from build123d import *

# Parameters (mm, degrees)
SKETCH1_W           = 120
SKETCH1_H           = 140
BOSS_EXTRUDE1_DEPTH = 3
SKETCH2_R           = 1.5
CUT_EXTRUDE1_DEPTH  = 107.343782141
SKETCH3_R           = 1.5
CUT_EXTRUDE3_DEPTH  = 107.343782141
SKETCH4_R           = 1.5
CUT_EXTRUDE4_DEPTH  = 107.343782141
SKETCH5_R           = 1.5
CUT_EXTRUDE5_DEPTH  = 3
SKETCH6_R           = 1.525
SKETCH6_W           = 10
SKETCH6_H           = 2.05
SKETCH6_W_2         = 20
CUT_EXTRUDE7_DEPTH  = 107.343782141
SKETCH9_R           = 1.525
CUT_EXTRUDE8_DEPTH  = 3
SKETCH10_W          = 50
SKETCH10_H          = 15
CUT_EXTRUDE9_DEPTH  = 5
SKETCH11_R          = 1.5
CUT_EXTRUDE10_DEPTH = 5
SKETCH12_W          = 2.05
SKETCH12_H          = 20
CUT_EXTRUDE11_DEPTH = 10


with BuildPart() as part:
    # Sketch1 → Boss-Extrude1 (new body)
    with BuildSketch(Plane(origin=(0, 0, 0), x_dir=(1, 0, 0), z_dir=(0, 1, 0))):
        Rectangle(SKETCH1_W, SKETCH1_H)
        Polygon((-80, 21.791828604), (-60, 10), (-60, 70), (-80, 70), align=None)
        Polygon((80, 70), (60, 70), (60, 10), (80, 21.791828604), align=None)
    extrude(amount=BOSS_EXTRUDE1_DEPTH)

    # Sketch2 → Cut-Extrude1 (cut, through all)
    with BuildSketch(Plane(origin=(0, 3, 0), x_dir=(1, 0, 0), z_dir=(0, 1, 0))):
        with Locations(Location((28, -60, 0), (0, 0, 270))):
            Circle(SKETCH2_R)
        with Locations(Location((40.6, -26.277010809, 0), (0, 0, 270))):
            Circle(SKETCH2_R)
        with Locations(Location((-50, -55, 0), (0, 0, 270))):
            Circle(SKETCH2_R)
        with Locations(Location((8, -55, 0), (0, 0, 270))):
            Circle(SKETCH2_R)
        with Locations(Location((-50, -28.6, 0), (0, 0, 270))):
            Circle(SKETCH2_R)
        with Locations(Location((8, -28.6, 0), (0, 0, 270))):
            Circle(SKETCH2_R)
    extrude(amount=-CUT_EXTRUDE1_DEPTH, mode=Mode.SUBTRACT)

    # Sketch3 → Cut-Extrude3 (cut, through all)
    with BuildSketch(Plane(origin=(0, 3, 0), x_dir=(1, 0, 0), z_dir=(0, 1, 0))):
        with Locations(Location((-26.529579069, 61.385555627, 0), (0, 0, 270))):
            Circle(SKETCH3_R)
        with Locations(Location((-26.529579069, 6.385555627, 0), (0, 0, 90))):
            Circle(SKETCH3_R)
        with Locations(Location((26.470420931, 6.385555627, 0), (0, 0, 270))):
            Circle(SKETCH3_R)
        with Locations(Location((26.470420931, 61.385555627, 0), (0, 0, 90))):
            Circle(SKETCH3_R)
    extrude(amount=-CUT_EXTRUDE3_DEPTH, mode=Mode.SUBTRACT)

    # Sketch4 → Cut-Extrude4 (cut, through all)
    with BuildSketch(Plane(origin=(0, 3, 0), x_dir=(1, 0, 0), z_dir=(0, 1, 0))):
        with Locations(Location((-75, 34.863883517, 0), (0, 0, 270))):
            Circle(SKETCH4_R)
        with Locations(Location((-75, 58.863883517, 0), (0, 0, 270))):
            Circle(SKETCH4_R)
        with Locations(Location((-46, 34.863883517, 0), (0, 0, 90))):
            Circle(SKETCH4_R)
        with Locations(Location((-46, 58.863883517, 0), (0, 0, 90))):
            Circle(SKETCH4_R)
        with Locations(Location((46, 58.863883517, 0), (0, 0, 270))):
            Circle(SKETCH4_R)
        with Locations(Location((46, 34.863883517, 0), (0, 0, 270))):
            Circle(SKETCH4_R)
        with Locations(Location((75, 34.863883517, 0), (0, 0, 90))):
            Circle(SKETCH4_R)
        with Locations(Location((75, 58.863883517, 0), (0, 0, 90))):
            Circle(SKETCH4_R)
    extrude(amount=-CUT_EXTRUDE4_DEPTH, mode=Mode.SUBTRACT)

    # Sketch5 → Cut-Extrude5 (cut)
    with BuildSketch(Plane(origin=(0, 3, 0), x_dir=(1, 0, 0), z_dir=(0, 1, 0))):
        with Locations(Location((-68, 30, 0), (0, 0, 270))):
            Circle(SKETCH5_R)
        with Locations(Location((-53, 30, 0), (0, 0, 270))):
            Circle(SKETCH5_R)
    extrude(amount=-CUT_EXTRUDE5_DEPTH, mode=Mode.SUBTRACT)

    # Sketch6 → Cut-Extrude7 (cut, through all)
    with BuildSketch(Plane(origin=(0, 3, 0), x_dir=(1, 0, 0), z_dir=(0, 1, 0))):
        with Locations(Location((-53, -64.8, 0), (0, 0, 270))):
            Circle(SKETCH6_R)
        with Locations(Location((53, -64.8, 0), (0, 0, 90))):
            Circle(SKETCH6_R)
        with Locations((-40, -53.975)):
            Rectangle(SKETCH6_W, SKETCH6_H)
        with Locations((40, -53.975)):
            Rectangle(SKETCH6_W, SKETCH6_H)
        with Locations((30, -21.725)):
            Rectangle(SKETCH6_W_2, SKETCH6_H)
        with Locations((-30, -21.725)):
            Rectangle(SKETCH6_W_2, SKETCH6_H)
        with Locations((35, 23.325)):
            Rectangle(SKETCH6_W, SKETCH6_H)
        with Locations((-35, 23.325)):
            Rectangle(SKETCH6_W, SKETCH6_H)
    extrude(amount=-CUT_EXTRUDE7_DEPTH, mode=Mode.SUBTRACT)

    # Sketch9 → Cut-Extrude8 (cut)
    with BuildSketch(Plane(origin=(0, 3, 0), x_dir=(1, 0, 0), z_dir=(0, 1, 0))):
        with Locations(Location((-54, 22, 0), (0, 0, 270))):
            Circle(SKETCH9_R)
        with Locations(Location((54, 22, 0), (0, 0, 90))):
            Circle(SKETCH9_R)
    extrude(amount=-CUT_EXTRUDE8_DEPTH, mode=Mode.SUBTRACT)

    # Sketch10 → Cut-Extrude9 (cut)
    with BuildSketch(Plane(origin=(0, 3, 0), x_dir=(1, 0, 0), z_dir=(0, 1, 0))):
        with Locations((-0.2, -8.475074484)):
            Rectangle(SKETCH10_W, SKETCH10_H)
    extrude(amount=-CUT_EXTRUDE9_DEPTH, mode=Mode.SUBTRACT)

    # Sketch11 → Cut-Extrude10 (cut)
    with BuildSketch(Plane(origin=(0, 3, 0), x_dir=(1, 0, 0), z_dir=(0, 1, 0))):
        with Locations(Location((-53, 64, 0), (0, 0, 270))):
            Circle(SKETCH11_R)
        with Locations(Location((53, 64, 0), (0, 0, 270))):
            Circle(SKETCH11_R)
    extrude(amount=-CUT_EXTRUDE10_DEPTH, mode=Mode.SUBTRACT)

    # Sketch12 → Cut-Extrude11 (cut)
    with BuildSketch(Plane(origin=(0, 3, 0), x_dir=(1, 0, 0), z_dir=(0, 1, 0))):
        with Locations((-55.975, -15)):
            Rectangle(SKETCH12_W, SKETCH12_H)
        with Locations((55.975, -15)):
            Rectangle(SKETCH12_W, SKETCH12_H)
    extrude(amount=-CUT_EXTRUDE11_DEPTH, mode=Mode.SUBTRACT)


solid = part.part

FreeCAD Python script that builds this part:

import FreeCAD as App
import Part
import Sketcher

V = App.Vector


def add_polygon(sketch, points):
    """Adds a closed chain of lines whose ends are joined by coincident constraints."""
    first, n = sketch.GeometryCount, len(points)
    for a, b in zip(points, points[1:] + points[:1]):
        sketch.addGeometry(Part.LineSegment(App.Vector(*a, 0), App.Vector(*b, 0)), False)
    for i in range(n):
        sketch.addConstraint(Sketcher.Constraint("Coincident", first + i, 2, first + (i + 1) % n, 1))

doc = App.newDocument("Part")
body = doc.addObject("PartDesign::Body", "Body")

# Sketch on XZ plane
sketch1 = body.newObject("Sketcher::SketchObject", "Sketch")
sketch1.AttachmentSupport = (doc.getObject("XZ_Plane"), [""])
sketch1.MapMode = "FlatFace"
add_polygon(sketch1, [(-60, -10), (-60, 70), (60, 70), (60, -10), (80, -22), (80, -70), (-80, -70), (-80, -22)])  # lines 0-7
sketch1.addConstraint(Sketcher.Constraint("Vertical", 0))
sketch1.addConstraint(Sketcher.Constraint("Horizontal", 1))
sketch1.addConstraint(Sketcher.Constraint("Vertical", 2))
sketch1.addConstraint(Sketcher.Constraint("Vertical", 4))
sketch1.addConstraint(Sketcher.Constraint("Horizontal", 5))
sketch1.addConstraint(Sketcher.Constraint("Vertical", 6))
sketch1.addConstraint(Sketcher.Constraint("Symmetric", 3, 2, 6, 2, -2))
sketch1.addConstraint(Sketcher.Constraint("Symmetric", 2, 2, 7, 2, -2))
sketch1.addConstraint(Sketcher.Constraint("DistanceX", 1, 1, 1, 2, 120.0))
sketch1.addConstraint(Sketcher.Constraint("DistanceX", 5, 2, 5, 1, 160.0))
sketch1.addConstraint(Sketcher.Constraint("DistanceY", 0, 1, 0, 2, 80.0))
sketch1.addConstraint(Sketcher.Constraint("DistanceY", -1, 1, 0, 2, 70.0))
sketch1.addConstraint(Sketcher.Constraint("DistanceY", 4, 2, -1, 1, 70.0))
sketch1.addConstraint(Sketcher.Constraint("DistanceY", 4, 2, 4, 1, 48.208171))
pad1 = body.newObject("PartDesign::Pad", "Pad")
pad1.Profile = sketch1
pad1.Length = 3
pad1.Reversed = True

# Sketch on XZ plane
sketch2 = body.newObject("Sketcher::SketchObject", "Sketch001")
sketch2.AttachmentSupport = (doc.getObject("XZ_Plane"), [""])
sketch2.MapMode = "FlatFace"
sketch2.AttachmentOffset = App.Placement(V(0, 0, -3), App.Rotation())
sketch2.addGeometry(Part.Circle(V(28, 60, 0), V(0, 0, 1), 1.5), False)
sketch2.addGeometry(Part.Circle(V(40.6, 26.3, 0), V(0, 0, 1), 1.5), False)
sketch2.addGeometry(Part.Circle(V(-50, 55, 0), V(0, 0, 1), 1.5), False)
sketch2.addGeometry(Part.Circle(V(8, 55, 0), V(0, 0, 1), 1.5), False)
sketch2.addGeometry(Part.Circle(V(-50, 28.6, 0), V(0, 0, 1), 1.5), False)
sketch2.addGeometry(Part.Circle(V(8, 28.6, 0), V(0, 0, 1), 1.5), False)
sketch2.addConstraint(Sketcher.Constraint("Equal", 0, 1))
sketch2.addConstraint(Sketcher.Constraint("Equal", 1, 2))
sketch2.addConstraint(Sketcher.Constraint("Equal", 2, 3))
sketch2.addConstraint(Sketcher.Constraint("Equal", 3, 4))
sketch2.addConstraint(Sketcher.Constraint("Equal", 4, 5))
sketch2.addConstraint(Sketcher.Constraint("Horizontal", 2, 3, 3, 3))
sketch2.addConstraint(Sketcher.Constraint("Horizontal", 4, 3, 5, 3))
sketch2.addConstraint(Sketcher.Constraint("Vertical", 2, 3, 4, 3))
sketch2.addConstraint(Sketcher.Constraint("Vertical", 3, 3, 5, 3))
sketch2.addConstraint(Sketcher.Constraint("Diameter", 0, 3.0))
sketch2.addConstraint(Sketcher.Constraint("DistanceX", -1, 1, 0, 3, 28.0))
sketch2.addConstraint(Sketcher.Constraint("DistanceY", -1, 1, 0, 3, 60.0))
sketch2.addConstraint(Sketcher.Constraint("DistanceX", 2, 3, -1, 1, 50.0))
sketch2.addConstraint(Sketcher.Constraint("DistanceY", -1, 1, 2, 3, 55.0))
sketch2.addConstraint(Sketcher.Constraint("DistanceX", -1, 1, 3, 3, 8.0))
sketch2.addConstraint(Sketcher.Constraint("DistanceX", -1, 1, 1, 3, 40.6))
sketch2.addConstraint(Sketcher.Constraint("DistanceY", -1, 1, 4, 3, 28.6))
sketch2.addConstraint(Sketcher.Constraint("DistanceY", -1, 1, 1, 3, 26.277011))
pocket1 = body.newObject("PartDesign::Pocket", "Pocket")
pocket1.Profile = sketch2
pocket1.Type = "ThroughAll"
pocket1.Reversed = True

# Sketch on XZ plane
sketch3 = body.newObject("Sketcher::SketchObject", "Sketch002")
sketch3.AttachmentSupport = (doc.getObject("XZ_Plane"), [""])
sketch3.MapMode = "FlatFace"
sketch3.AttachmentOffset = App.Placement(V(0, 0, -3), App.Rotation())
sketch3.addGeometry(Part.Circle(V(-26.5, -61.4, 0), V(0, 0, 1), 1.5), False)
sketch3.addGeometry(Part.Circle(V(-26.5, -6.4, 0), V(0, 0, 1), 1.5), False)
sketch3.addGeometry(Part.Circle(V(26.5, -6.4, 0), V(0, 0, 1), 1.5), False)
sketch3.addGeometry(Part.Circle(V(26.5, -61.4, 0), V(0, 0, 1), 1.5), False)
sketch3.addConstraint(Sketcher.Constraint("Equal", 0, 1))
sketch3.addConstraint(Sketcher.Constraint("Equal", 1, 2))
sketch3.addConstraint(Sketcher.Constraint("Equal", 2, 3))
sketch3.addConstraint(Sketcher.Constraint("Horizontal", 1, 3, 2, 3))
sketch3.addConstraint(Sketcher.Constraint("Horizontal", 0, 3, 3, 3))
sketch3.addConstraint(Sketcher.Constraint("Vertical", 0, 3, 1, 3))
sketch3.addConstraint(Sketcher.Constraint("Vertical", 2, 3, 3, 3))
sketch3.addConstraint(Sketcher.Constraint("Diameter", 0, 3.0))
sketch3.addConstraint(Sketcher.Constraint("DistanceY", 0, 3, 1, 3, 55.0))
sketch3.addConstraint(Sketcher.Constraint("DistanceX", 1, 3, 2, 3, 53.0))
sketch3.addConstraint(Sketcher.Constraint("DistanceX", 0, 3, -1, 1, 26.529579))
sketch3.addConstraint(Sketcher.Constraint("DistanceY", 0, 3, -1, 1, 61.385556))
pocket2 = body.newObject("PartDesign::Pocket", "Pocket001")
pocket2.Profile = sketch3
pocket2.Type = "ThroughAll"
pocket2.Reversed = True

# Sketch on XZ plane
sketch4 = body.newObject("Sketcher::SketchObject", "Sketch003")
sketch4.AttachmentSupport = (doc.getObject("XZ_Plane"), [""])
sketch4.MapMode = "FlatFace"
sketch4.AttachmentOffset = App.Placement(V(0, 0, -3), App.Rotation())
sketch4.addGeometry(Part.Circle(V(-75, -34.9, 0), V(0, 0, 1), 1.5), False)
sketch4.addGeometry(Part.Circle(V(-75, -58.9, 0), V(0, 0, 1), 1.5), False)
sketch4.addGeometry(Part.Circle(V(-46, -34.9, 0), V(0, 0, 1), 1.5), False)
sketch4.addGeometry(Part.Circle(V(-46, -58.9, 0), V(0, 0, 1), 1.5), False)
sketch4.addGeometry(Part.Circle(V(46, -58.9, 0), V(0, 0, 1), 1.5), False)
sketch4.addGeometry(Part.Circle(V(46, -34.9, 0), V(0, 0, 1), 1.5), False)
sketch4.addGeometry(Part.Circle(V(75, -34.9, 0), V(0, 0, 1), 1.5), False)
sketch4.addGeometry(Part.Circle(V(75, -58.9, 0), V(0, 0, 1), 1.5), False)
sketch4.addConstraint(Sketcher.Constraint("Equal", 0, 1))
sketch4.addConstraint(Sketcher.Constraint("Equal", 1, 2))
sketch4.addConstraint(Sketcher.Constraint("Equal", 2, 3))
sketch4.addConstraint(Sketcher.Constraint("Equal", 3, 4))
sketch4.addConstraint(Sketcher.Constraint("Equal", 4, 5))
sketch4.addConstraint(Sketcher.Constraint("Equal", 5, 6))
sketch4.addConstraint(Sketcher.Constraint("Equal", 6, 7))
sketch4.addConstraint(Sketcher.Constraint("Symmetric", 3, 3, 4, 3, -2))
sketch4.addConstraint(Sketcher.Constraint("Symmetric", 2, 3, 5, 3, -2))
sketch4.addConstraint(Sketcher.Constraint("Symmetric", 0, 3, 6, 3, -2))
sketch4.addConstraint(Sketcher.Constraint("Symmetric", 1, 3, 7, 3, -2))
sketch4.addConstraint(Sketcher.Constraint("Horizontal", 0, 3, 2, 3))
sketch4.addConstraint(Sketcher.Constraint("Horizontal", 1, 3, 3, 3))
sketch4.addConstraint(Sketcher.Constraint("Vertical", 0, 3, 1, 3))
sketch4.addConstraint(Sketcher.Constraint("Vertical", 2, 3, 3, 3))
sketch4.addConstraint(Sketcher.Constraint("Diameter", 0, 3.0))
sketch4.addConstraint(Sketcher.Constraint("DistanceX", 0, 3, -1, 1, 75.0))
sketch4.addConstraint(Sketcher.Constraint("DistanceX", 2, 3, -1, 1, 46.0))
sketch4.addConstraint(Sketcher.Constraint("DistanceY", 1, 3, 0, 3, 24.0))
sketch4.addConstraint(Sketcher.Constraint("DistanceY", 0, 3, -1, 1, 34.863884))
pocket3 = body.newObject("PartDesign::Pocket", "Pocket002")
pocket3.Profile = sketch4
pocket3.Type = "ThroughAll"
pocket3.Reversed = True

# Sketch on XZ plane
sketch5 = body.newObject("Sketcher::SketchObject", "Sketch004")
sketch5.AttachmentSupport = (doc.getObject("XZ_Plane"), [""])
sketch5.MapMode = "FlatFace"
sketch5.AttachmentOffset = App.Placement(V(0, 0, -3), App.Rotation())
sketch5.addGeometry(Part.Circle(V(-68, -30, 0), V(0, 0, 1), 1.5), False)
sketch5.addGeometry(Part.Circle(V(-53, -30, 0), V(0, 0, 1), 1.5), False)
sketch5.addConstraint(Sketcher.Constraint("Equal", 0, 1))
sketch5.addConstraint(Sketcher.Constraint("Horizontal", 0, 3, 1, 3))
sketch5.addConstraint(Sketcher.Constraint("Diameter", 0, 3.0))
sketch5.addConstraint(Sketcher.Constraint("DistanceX", 0, 3, -1, 1, 68.0))
sketch5.addConstraint(Sketcher.Constraint("DistanceY", 0, 3, -1, 1, 30.0))
sketch5.addConstraint(Sketcher.Constraint("DistanceX", 1, 3, -1, 1, 53.0))
pocket4 = body.newObject("PartDesign::Pocket", "Pocket003")
pocket4.Profile = sketch5
pocket4.Length = 3
pocket4.Reversed = True

# Sketch on XZ plane
sketch6 = body.newObject("Sketcher::SketchObject", "Sketch005")
sketch6.AttachmentSupport = (doc.getObject("XZ_Plane"), [""])
sketch6.MapMode = "FlatFace"
sketch6.AttachmentOffset = App.Placement(V(0, 0, -3), App.Rotation())
sketch6.addGeometry(Part.Circle(V(-53, 64.8, 0), V(0, 0, 1), 1.5), False)  # 0
sketch6.addGeometry(Part.Circle(V(53, 64.8, 0), V(0, 0, 1), 1.5), False)  # 1
add_polygon(sketch6, [(-45, 53), (-45, 55), (-35, 55), (-35, 53)])  # lines 2-5
add_polygon(sketch6, [(35, 53), (35, 55), (45, 55), (45, 53)])  # lines 6-9
add_polygon(sketch6, [(20, 20.7), (20, 22.8), (40, 22.8), (40, 20.7)])  # lines 10-13
add_polygon(sketch6, [(-40, 20.7), (-40, 22.8), (-20, 22.8), (-20, 20.7)])  # lines 14-17
add_polygon(sketch6, [(30, -24.4), (30, -22.3), (40, -22.3), (40, -24.4)])  # lines 18-21
add_polygon(sketch6, [(-40, -24.4), (-40, -22.3), (-30, -22.3), (-30, -24.4)])  # lines 22-25
sketch6.addConstraint(Sketcher.Constraint("Vertical", 2))
sketch6.addConstraint(Sketcher.Constraint("Horizontal", 3))
sketch6.addConstraint(Sketcher.Constraint("Vertical", 4))
sketch6.addConstraint(Sketcher.Constraint("Horizontal", 5))
sketch6.addConstraint(Sketcher.Constraint("Vertical", 6))
sketch6.addConstraint(Sketcher.Constraint("Horizontal", 7))
sketch6.addConstraint(Sketcher.Constraint("Vertical", 8))
sketch6.addConstraint(Sketcher.Constraint("Horizontal", 9))
sketch6.addConstraint(Sketcher.Constraint("Vertical", 10))
sketch6.addConstraint(Sketcher.Constraint("Horizontal", 11))
sketch6.addConstraint(Sketcher.Constraint("Vertical", 12))
sketch6.addConstraint(Sketcher.Constraint("Horizontal", 13))
sketch6.addConstraint(Sketcher.Constraint("Vertical", 14))
sketch6.addConstraint(Sketcher.Constraint("Horizontal", 15))
sketch6.addConstraint(Sketcher.Constraint("Vertical", 16))
sketch6.addConstraint(Sketcher.Constraint("Horizontal", 17))
sketch6.addConstraint(Sketcher.Constraint("Vertical", 18))
sketch6.addConstraint(Sketcher.Constraint("Horizontal", 19))
sketch6.addConstraint(Sketcher.Constraint("Vertical", 20))
sketch6.addConstraint(Sketcher.Constraint("Horizontal", 21))
sketch6.addConstraint(Sketcher.Constraint("Vertical", 22))
sketch6.addConstraint(Sketcher.Constraint("Horizontal", 23))
sketch6.addConstraint(Sketcher.Constraint("Vertical", 24))
sketch6.addConstraint(Sketcher.Constraint("Horizontal", 25))
sketch6.addConstraint(Sketcher.Constraint("Equal", 0, 1))
sketch6.addConstraint(Sketcher.Constraint("Symmetric", 0, 3, 1, 3, -2))
sketch6.addConstraint(Sketcher.Constraint("Symmetric", 3, 2, 6, 2, -2))
sketch6.addConstraint(Sketcher.Constraint("Symmetric", 5, 2, 8, 2, -2))
sketch6.addConstraint(Sketcher.Constraint("Symmetric", 11, 2, 14, 2, -2))
sketch6.addConstraint(Sketcher.Constraint("Symmetric", 13, 2, 16, 2, -2))
sketch6.addConstraint(Sketcher.Constraint("Symmetric", 19, 2, 22, 2, -2))
sketch6.addConstraint(Sketcher.Constraint("Symmetric", 21, 2, 24, 2, -2))
sketch6.addConstraint(Sketcher.Constraint("Vertical", 12, 2, 19, 2))
sketch6.addConstraint(Sketcher.Constraint("Equal", 9, 19))
sketch6.addConstraint(Sketcher.Constraint("Equal", 8, 10))
sketch6.addConstraint(Sketcher.Constraint("Equal", 16, 18))
sketch6.addConstraint(Sketcher.Constraint("Diameter", 0, 3.05))
sketch6.addConstraint(Sketcher.Constraint("DistanceX", 3, 1, 3, 2, 10.0))
sketch6.addConstraint(Sketcher.Constraint("DistanceX", 11, 1, 11, 2, 20.0))
sketch6.addConstraint(Sketcher.Constraint("DistanceX", 0, 3, -1, 1, 53.0))
sketch6.addConstraint(Sketcher.Constraint("DistanceX", 2, 2, -1, 1, 45.0))
sketch6.addConstraint(Sketcher.Constraint("DistanceY", -1, 1, 2, 2, 55.0))
sketch6.addConstraint(Sketcher.Constraint("DistanceX", -1, 1, 10, 2, 20.0))
sketch6.addConstraint(Sketcher.Constraint("DistanceY", 18, 2, 12, 2, 43.0))
sketch6.addConstraint(Sketcher.Constraint("DistanceY", 2, 1, 2, 2, 2.05))
sketch6.addConstraint(Sketcher.Constraint("DistanceY", -1, 1, 0, 3, 64.8))
sketch6.addConstraint(Sketcher.Constraint("DistanceY", -1, 1, 12, 2, 20.7))
pocket5 = body.newObject("PartDesign::Pocket", "Pocket004")
pocket5.Profile = sketch6
pocket5.Type = "ThroughAll"
pocket5.Reversed = True

# Sketch on XZ plane
sketch7 = body.newObject("Sketcher::SketchObject", "Sketch006")
sketch7.AttachmentSupport = (doc.getObject("XZ_Plane"), [""])
sketch7.MapMode = "FlatFace"
sketch7.AttachmentOffset = App.Placement(V(0, 0, -3), App.Rotation())
sketch7.addGeometry(Part.Circle(V(-54, -22, 0), V(0, 0, 1), 1.5), False)
sketch7.addGeometry(Part.Circle(V(54, -22, 0), V(0, 0, 1), 1.5), False)
sketch7.addConstraint(Sketcher.Constraint("Equal", 0, 1))
sketch7.addConstraint(Sketcher.Constraint("Symmetric", 0, 3, 1, 3, -2))
sketch7.addConstraint(Sketcher.Constraint("Diameter", 0, 3.05))
sketch7.addConstraint(Sketcher.Constraint("DistanceX", 0, 3, -1, 1, 54.0))
sketch7.addConstraint(Sketcher.Constraint("DistanceY", 0, 3, -1, 1, 22.0))
pocket6 = body.newObject("PartDesign::Pocket", "Pocket005")
pocket6.Profile = sketch7
pocket6.Length = 3
pocket6.Reversed = True

# Sketch on XZ plane
sketch8 = body.newObject("Sketcher::SketchObject", "Sketch007")
sketch8.AttachmentSupport = (doc.getObject("XZ_Plane"), [""])
sketch8.MapMode = "FlatFace"
sketch8.AttachmentOffset = App.Placement(V(0, 0, -3), App.Rotation())
add_polygon(sketch8, [(-25, 1), (-25, 16), (25, 16), (25, 1)])  # lines 0-3
sketch8.addConstraint(Sketcher.Constraint("Vertical", 0))
sketch8.addConstraint(Sketcher.Constraint("Horizontal", 1))
sketch8.addConstraint(Sketcher.Constraint("Vertical", 2))
sketch8.addConstraint(Sketcher.Constraint("Horizontal", 3))
sketch8.addConstraint(Sketcher.Constraint("DistanceX", 1, 1, 1, 2, 50.0))
sketch8.addConstraint(Sketcher.Constraint("DistanceY", 0, 1, 0, 2, 15.0))
sketch8.addConstraint(Sketcher.Constraint("DistanceX", 0, 2, -1, 1, 25.2))
sketch8.addConstraint(Sketcher.Constraint("DistanceY", -1, 1, 0, 2, 15.975074))
pocket7 = body.newObject("PartDesign::Pocket", "Pocket006")
pocket7.Profile = sketch8
pocket7.Length = 5
pocket7.Reversed = True

# Sketch on XZ plane
sketch9 = body.newObject("Sketcher::SketchObject", "Sketch008")
sketch9.AttachmentSupport = (doc.getObject("XZ_Plane"), [""])
sketch9.MapMode = "FlatFace"
sketch9.AttachmentOffset = App.Placement(V(0, 0, -3), App.Rotation())
sketch9.addGeometry(Part.Circle(V(-53, -64, 0), V(0, 0, 1), 1.5), False)
sketch9.addGeometry(Part.Circle(V(53, -64, 0), V(0, 0, 1), 1.5), False)
sketch9.addConstraint(Sketcher.Constraint("Equal", 0, 1))
sketch9.addConstraint(Sketcher.Constraint("Symmetric", 0, 3, 1, 3, -2))
sketch9.addConstraint(Sketcher.Constraint("Diameter", 0, 3.0))
sketch9.addConstraint(Sketcher.Constraint("DistanceX", 0, 3, -1, 1, 53.0))
sketch9.addConstraint(Sketcher.Constraint("DistanceY", 0, 3, -1, 1, 64.0))
pocket8 = body.newObject("PartDesign::Pocket", "Pocket007")
pocket8.Profile = sketch9
pocket8.Length = 5
pocket8.Reversed = True

# Sketch on XZ plane
sketch10 = body.newObject("Sketcher::SketchObject", "Sketch009")
sketch10.AttachmentSupport = (doc.getObject("XZ_Plane"), [""])
sketch10.MapMode = "FlatFace"
sketch10.AttachmentOffset = App.Placement(V(0, 0, -3), App.Rotation())
add_polygon(sketch10, [(-57, 5), (-57, 25), (-55, 25), (-55, 5)])  # lines 0-3
add_polygon(sketch10, [(55, 5), (55, 25), (57, 25), (57, 5)])  # lines 4-7
sketch10.addConstraint(Sketcher.Constraint("Vertical", 0))
sketch10.addConstraint(Sketcher.Constraint("Horizontal", 1))
sketch10.addConstraint(Sketcher.Constraint("Vertical", 2))
sketch10.addConstraint(Sketcher.Constraint("Horizontal", 3))
sketch10.addConstraint(Sketcher.Constraint("Vertical", 4))
sketch10.addConstraint(Sketcher.Constraint("Horizontal", 5))
sketch10.addConstraint(Sketcher.Constraint("Vertical", 6))
sketch10.addConstraint(Sketcher.Constraint("Horizontal", 7))
sketch10.addConstraint(Sketcher.Constraint("Symmetric", 1, 2, 4, 2, -2))
sketch10.addConstraint(Sketcher.Constraint("Symmetric", 3, 2, 6, 2, -2))
sketch10.addConstraint(Sketcher.Constraint("DistanceY", 0, 1, 0, 2, 20.0))
sketch10.addConstraint(Sketcher.Constraint("DistanceX", 0, 2, -1, 1, 57.0))
sketch10.addConstraint(Sketcher.Constraint("DistanceY", -1, 1, 0, 2, 25.0))
sketch10.addConstraint(Sketcher.Constraint("DistanceX", 1, 1, 1, 2, 2.05))
pocket9 = body.newObject("PartDesign::Pocket", "Pocket008")
pocket9.Profile = sketch10
pocket9.Length = 10
pocket9.Reversed = True

doc.recompute()
